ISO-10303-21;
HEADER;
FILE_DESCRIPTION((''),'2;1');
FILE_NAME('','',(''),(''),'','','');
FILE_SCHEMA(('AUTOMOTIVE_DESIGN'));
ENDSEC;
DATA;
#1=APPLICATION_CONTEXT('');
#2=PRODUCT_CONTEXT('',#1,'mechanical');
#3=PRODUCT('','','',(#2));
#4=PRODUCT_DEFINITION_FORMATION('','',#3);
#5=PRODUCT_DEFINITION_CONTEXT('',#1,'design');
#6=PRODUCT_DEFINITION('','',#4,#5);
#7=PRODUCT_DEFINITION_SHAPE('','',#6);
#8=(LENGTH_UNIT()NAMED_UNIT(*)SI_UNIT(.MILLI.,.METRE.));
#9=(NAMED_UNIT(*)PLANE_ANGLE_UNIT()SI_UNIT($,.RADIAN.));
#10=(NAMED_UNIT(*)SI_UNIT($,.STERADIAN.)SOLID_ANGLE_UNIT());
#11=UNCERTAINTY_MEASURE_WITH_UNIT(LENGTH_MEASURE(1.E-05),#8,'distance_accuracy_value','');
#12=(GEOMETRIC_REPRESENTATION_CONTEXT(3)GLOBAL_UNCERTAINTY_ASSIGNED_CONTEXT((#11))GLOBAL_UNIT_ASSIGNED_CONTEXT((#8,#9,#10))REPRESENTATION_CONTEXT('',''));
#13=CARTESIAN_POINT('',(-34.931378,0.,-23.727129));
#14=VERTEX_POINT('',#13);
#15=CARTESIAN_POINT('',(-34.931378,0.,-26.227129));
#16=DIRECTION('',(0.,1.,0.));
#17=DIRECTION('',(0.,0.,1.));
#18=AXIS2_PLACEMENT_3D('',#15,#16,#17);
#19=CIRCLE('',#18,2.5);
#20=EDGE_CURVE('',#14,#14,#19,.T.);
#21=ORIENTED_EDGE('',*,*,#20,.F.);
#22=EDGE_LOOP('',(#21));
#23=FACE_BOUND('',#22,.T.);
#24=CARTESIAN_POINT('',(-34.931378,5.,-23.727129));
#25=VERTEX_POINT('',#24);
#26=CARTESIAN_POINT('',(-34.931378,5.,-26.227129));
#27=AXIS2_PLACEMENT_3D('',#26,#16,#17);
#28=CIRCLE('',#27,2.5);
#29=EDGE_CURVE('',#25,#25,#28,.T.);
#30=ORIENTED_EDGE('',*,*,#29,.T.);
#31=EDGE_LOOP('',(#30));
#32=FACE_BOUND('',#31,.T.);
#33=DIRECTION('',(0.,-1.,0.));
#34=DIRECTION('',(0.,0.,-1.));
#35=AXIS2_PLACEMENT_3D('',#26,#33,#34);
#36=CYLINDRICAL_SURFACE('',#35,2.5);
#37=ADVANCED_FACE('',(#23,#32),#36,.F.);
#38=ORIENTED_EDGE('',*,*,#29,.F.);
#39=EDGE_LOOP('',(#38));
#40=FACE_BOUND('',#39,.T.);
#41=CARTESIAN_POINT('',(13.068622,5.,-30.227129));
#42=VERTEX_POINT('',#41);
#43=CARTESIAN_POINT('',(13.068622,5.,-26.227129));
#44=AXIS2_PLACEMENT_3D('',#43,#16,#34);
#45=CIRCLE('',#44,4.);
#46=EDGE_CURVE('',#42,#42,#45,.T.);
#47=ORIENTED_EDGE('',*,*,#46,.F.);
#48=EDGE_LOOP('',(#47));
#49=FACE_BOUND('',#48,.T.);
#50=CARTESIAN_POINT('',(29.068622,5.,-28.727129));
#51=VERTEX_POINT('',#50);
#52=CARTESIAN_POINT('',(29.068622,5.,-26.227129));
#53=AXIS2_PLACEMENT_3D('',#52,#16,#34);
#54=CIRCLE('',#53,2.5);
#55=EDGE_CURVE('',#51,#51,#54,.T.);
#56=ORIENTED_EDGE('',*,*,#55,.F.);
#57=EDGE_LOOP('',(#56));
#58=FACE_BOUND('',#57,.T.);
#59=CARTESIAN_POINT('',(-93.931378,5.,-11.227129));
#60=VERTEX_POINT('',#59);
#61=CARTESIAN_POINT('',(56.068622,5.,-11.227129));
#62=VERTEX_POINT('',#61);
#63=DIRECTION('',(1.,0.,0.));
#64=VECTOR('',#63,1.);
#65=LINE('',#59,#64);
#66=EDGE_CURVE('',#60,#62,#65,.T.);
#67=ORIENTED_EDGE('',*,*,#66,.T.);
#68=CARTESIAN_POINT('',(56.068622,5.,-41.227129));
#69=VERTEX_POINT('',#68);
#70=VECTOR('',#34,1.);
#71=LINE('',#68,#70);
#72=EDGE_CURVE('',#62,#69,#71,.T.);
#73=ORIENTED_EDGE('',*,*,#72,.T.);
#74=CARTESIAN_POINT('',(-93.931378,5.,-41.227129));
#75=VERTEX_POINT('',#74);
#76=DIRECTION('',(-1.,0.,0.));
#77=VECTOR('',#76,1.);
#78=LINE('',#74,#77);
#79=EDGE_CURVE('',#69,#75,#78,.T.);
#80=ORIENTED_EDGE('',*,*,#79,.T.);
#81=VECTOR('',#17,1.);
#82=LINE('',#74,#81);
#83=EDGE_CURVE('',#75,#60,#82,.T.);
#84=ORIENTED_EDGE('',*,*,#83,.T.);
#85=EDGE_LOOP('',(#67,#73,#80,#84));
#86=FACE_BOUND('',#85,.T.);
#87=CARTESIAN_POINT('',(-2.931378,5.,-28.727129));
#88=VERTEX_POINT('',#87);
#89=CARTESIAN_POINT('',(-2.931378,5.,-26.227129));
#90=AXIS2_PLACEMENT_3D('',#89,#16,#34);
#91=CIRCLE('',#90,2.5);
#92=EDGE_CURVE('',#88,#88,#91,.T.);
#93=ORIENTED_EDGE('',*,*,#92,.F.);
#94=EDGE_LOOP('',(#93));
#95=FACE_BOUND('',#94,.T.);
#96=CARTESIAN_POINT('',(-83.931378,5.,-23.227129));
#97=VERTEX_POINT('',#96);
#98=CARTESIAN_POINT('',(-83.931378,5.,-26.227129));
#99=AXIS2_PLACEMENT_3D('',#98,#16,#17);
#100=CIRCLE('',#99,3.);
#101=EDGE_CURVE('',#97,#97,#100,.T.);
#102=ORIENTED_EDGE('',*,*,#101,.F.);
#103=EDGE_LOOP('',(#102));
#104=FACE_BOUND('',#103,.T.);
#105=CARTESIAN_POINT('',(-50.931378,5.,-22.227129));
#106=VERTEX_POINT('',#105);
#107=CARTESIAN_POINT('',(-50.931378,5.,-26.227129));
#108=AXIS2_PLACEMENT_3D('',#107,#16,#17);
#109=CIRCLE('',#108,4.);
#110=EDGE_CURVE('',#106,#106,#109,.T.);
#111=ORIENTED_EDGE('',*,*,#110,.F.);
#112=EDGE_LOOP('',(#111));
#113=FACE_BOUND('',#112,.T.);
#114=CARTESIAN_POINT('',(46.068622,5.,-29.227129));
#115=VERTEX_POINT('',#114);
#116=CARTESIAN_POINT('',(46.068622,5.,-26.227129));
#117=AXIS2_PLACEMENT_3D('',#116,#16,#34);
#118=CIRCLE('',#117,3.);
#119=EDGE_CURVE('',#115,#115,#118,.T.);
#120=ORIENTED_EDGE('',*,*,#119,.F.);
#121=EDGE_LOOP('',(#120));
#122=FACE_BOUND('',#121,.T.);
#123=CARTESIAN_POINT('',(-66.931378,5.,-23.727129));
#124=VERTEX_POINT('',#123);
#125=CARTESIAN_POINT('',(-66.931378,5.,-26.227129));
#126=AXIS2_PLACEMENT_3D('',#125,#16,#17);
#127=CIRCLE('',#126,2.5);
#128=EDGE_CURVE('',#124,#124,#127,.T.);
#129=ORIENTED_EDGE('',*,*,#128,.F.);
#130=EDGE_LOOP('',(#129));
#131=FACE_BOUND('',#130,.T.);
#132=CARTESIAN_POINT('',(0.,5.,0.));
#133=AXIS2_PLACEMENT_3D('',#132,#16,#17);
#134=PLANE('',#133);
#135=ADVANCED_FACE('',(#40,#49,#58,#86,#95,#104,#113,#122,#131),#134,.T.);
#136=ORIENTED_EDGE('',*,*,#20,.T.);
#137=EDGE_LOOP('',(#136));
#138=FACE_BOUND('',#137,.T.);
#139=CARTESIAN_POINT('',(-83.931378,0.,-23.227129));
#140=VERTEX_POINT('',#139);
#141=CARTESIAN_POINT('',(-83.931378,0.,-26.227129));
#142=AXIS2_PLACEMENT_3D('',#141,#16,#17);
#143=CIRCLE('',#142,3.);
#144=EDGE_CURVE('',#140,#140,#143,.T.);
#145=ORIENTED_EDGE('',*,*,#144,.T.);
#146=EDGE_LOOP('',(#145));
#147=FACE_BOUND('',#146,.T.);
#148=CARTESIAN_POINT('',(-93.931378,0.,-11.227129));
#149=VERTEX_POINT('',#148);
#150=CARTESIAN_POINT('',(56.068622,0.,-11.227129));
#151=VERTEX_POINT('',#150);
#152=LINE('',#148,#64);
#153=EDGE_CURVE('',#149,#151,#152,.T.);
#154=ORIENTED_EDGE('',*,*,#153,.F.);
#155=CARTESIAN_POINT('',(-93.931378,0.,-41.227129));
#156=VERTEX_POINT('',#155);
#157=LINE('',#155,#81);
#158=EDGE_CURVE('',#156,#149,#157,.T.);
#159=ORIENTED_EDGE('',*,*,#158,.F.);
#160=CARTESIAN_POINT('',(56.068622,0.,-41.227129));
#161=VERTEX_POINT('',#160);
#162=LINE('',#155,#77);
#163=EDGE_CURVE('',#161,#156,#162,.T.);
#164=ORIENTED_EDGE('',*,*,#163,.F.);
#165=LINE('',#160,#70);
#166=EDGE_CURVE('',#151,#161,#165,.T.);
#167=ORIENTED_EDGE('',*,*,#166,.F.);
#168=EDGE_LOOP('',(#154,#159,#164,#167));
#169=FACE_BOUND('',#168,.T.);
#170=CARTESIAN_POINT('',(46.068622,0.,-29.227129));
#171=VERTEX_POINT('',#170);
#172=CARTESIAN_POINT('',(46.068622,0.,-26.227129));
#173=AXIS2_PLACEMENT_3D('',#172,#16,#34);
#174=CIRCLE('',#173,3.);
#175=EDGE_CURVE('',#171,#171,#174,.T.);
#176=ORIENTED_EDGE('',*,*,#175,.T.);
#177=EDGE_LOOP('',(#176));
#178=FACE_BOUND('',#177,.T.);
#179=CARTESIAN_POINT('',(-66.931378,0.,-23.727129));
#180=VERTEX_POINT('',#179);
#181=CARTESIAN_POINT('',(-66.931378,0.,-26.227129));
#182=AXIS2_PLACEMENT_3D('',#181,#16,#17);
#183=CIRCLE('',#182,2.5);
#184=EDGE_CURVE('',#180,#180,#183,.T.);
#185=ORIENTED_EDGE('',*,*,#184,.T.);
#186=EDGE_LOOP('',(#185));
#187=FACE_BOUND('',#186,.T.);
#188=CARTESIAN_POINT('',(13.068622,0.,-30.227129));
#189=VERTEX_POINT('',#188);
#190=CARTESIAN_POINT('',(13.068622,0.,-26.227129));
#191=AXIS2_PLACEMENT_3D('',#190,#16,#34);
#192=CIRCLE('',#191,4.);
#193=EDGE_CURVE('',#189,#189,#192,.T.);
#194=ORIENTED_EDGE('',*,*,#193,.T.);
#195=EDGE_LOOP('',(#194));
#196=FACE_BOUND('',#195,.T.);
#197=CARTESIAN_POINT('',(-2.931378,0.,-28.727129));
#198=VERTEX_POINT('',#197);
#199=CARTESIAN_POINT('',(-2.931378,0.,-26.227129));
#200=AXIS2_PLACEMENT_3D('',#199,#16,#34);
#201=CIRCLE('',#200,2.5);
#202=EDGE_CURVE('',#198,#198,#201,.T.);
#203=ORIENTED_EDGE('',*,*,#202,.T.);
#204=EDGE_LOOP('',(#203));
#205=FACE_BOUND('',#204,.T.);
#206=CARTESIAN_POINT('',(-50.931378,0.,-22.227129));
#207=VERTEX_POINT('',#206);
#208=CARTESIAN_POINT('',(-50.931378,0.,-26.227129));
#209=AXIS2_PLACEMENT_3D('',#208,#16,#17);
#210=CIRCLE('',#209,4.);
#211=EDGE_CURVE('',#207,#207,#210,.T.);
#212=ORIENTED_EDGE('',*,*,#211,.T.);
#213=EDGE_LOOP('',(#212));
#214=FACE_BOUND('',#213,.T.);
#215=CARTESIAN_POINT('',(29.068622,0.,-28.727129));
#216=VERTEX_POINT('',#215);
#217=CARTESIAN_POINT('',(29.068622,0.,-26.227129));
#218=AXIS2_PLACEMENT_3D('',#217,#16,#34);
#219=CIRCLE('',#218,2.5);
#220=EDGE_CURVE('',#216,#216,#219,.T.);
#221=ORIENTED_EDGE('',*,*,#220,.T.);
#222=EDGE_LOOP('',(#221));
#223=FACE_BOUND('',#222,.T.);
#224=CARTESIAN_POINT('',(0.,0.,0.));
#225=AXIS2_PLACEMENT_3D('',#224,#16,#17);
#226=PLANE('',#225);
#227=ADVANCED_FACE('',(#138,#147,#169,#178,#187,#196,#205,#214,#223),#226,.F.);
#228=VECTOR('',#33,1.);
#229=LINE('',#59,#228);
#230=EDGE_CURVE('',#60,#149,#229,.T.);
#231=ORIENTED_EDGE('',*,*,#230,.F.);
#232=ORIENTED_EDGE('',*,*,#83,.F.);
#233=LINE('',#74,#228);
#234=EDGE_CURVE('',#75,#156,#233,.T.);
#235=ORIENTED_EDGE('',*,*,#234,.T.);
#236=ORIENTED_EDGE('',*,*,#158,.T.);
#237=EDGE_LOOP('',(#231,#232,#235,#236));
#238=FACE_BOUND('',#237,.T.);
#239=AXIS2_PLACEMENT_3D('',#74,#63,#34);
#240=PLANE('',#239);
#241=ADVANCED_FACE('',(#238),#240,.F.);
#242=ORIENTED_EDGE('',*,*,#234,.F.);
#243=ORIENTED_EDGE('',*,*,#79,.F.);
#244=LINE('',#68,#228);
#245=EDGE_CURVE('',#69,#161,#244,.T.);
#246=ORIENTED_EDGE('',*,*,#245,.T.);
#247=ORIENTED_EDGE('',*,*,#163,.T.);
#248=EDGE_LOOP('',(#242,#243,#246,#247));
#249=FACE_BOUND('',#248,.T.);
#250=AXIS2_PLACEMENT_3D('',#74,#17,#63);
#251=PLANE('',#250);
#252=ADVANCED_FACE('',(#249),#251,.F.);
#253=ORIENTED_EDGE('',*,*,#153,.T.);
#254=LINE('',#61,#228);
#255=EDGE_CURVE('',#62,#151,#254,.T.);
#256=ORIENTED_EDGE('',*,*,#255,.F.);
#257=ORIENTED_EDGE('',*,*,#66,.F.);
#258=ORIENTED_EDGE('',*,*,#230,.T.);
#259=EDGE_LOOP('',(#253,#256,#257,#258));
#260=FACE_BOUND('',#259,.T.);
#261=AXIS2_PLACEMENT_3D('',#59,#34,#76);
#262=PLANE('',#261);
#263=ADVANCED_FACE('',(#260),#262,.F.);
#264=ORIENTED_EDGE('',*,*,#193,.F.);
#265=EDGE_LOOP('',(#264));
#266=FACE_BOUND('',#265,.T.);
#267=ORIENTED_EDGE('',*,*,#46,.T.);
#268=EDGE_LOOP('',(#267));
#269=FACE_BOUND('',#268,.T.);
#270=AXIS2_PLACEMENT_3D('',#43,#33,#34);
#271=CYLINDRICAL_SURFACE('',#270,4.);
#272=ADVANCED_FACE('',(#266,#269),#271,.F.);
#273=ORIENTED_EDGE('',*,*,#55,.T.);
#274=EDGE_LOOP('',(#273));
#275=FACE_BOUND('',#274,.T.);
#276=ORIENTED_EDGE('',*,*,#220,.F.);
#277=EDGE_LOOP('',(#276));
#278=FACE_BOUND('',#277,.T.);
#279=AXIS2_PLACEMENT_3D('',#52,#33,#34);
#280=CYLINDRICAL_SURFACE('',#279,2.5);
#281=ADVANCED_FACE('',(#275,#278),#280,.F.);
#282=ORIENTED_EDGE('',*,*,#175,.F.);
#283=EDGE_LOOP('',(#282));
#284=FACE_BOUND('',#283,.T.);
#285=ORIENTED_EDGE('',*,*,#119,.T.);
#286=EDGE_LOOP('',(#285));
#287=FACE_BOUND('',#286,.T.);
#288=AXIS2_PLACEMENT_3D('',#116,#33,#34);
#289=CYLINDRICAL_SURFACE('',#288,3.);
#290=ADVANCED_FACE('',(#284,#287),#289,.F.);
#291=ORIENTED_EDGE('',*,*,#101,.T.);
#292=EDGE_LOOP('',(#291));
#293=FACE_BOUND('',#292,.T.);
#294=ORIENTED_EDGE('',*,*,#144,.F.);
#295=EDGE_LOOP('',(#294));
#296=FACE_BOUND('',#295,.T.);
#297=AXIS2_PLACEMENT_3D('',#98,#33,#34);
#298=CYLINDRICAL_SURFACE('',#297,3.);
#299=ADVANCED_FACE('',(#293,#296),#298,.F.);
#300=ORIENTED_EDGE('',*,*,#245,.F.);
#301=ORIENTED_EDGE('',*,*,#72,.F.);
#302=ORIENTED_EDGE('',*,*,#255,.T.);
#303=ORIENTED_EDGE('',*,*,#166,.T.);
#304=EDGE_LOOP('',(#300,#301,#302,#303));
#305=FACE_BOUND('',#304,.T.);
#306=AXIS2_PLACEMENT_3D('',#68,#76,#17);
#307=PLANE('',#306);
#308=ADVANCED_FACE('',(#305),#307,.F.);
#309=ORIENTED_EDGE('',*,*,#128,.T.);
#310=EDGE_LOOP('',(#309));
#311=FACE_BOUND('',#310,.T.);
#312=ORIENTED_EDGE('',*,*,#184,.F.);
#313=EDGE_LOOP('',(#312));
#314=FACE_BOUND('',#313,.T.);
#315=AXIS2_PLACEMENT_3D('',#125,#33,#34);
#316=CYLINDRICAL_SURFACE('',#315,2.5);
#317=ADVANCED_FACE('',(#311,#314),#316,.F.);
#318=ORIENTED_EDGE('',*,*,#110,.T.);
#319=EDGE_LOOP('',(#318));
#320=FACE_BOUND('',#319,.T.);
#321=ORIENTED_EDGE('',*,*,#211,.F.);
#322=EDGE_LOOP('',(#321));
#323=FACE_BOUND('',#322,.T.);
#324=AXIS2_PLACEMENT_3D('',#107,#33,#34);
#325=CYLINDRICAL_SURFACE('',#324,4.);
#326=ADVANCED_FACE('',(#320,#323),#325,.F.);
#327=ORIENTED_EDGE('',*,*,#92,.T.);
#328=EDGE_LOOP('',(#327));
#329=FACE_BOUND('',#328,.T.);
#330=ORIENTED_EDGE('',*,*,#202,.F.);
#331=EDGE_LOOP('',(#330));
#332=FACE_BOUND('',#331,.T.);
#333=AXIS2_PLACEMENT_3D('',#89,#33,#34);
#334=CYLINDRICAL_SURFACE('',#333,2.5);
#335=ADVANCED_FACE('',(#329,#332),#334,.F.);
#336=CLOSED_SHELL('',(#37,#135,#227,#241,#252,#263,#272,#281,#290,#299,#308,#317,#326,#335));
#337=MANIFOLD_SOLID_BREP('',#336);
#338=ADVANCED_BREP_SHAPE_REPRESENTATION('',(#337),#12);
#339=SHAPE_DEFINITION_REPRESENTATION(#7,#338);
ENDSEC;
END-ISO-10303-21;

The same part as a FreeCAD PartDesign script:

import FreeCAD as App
import Part
import Sketcher
from FreeCAD import Vector


def add_polygon(sketch, points):
    """Adds a closed chain of lines whose ends are joined by coincident constraints."""
    first, n = sketch.GeometryCount, len(points)
    for a, b in zip(points, points[1:] + points[:1]):
        sketch.addGeometry(Part.LineSegment(App.Vector(*a, 0), App.Vector(*b, 0)), False)
    for i in range(n):
        sketch.addConstraint(Sketcher.Constraint("Coincident", first + i, 2, first + (i + 1) % n, 1))

doc = App.newDocument("Part")
body = doc.addObject("PartDesign::Body", "Body")

sketch1 = doc.addObject("Sketcher::SketchObject", "Sketch")
body.addObject(sketch1)
sketch1.AttachmentSupport = (doc.XZ_Plane, [""])
sketch1.MapMode = "FlatFace"
add_polygon(sketch1, [(-93.9, -41.2), (-93.9, -11.2), (56.1, -11.2), (56.1, -41.2)])
sketch1.addGeometry(Part.Circle(Vector(-83.9, -26.2, 0), Vector(0, 0, 1), 3), False)
sketch1.addGeometry(Part.Circle(Vector(-66.9, -26.2, 0), Vector(0, 0, 1), 2.5), False)
sketch1.addGeometry(Part.Circle(Vector(-50.9, -26.2, 0), Vector(0, 0, 1), 4), False)
sketch1.addGeometry(Part.Circle(Vector(-34.9, -26.2, 0), Vector(0, 0, 1), 2.5), False)
sketch1.addGeometry(Part.Circle(Vector(-2.9, -26.2, 0), Vector(0, 0, 1), 2.5), False)
sketch1.addGeometry(Part.Circle(Vector(13.1, -26.2, 0), Vector(0, 0, 1), 4), False)
sketch1.addGeometry(Part.Circle(Vector(29.1, -26.2, 0), Vector(0, 0, 1), 2.5), False)
sketch1.addGeometry(Part.Circle(Vector(46.1, -26.2, 0), Vector(0, 0, 1), 3), False)
sketch1.addConstraint(Sketcher.Constraint("Vertical", 0))
sketch1.addConstraint(Sketcher.Constraint("Horizontal", 1))
sketch1.addConstraint(Sketcher.Constraint("Vertical", 2))
sketch1.addConstraint(Sketcher.Constraint("Horizontal", 3))
sketch1.addConstraint(Sketcher.Constraint("Equal", 5, 7))
sketch1.addConstraint(Sketcher.Constraint("Equal", 7, 8))
sketch1.addConstraint(Sketcher.Constraint("Equal", 6, 9))
sketch1.addConstraint(Sketcher.Constraint("Equal", 8, 10))
sketch1.addConstraint(Sketcher.Constraint("Equal", 4, 11))
sketch1.addConstraint(Sketcher.Constraint("Horizontal", 4, 3, 5, 3))
sketch1.addConstraint(Sketcher.Constraint("Horizontal", 5, 3, 6, 3))
sketch1.addConstraint(Sketcher.Constraint("Horizontal", 6, 3, 7, 3))
sketch1.addConstraint(Sketcher.Constraint("Horizontal", 7, 3, 8, 3))
sketch1.addConstraint(Sketcher.Constraint("Horizontal", 8, 3, 9, 3))
sketch1.addConstraint(Sketcher.Constraint("Horizontal", 9, 3, 10, 3))
sketch1.addConstraint(Sketcher.Constraint("Horizontal", 10, 3, 11, 3))
sketch1.addConstraint(Sketcher.Constraint("Diameter", 4, 6.0))
sketch1.addConstraint(Sketcher.Constraint("Diameter", 5, 5.0))
sketch1.addConstraint(Sketcher.Constraint("Diameter", 6, 8.0))
sketch1.addConstraint(Sketcher.Constraint("DistanceX", 1, 1, 1, 2, 150.0))
sketch1.addConstraint(Sketcher.Constraint("DistanceY", 0, 1, 0, 2, 30.0))
sketch1.addConstraint(Sketcher.Constraint("DistanceX", 4, 3, 5, 3, 17.0))
sketch1.addConstraint(Sketcher.Constraint("DistanceX", 5, 3, 6, 3, 16.0))
sketch1.addConstraint(Sketcher.Constraint("DistanceX", 6, 3, 7, 3, 16.0))
sketch1.addConstraint(Sketcher.Constraint("DistanceX", 7, 3, 8, 3, 32.0))
sketch1.addConstraint(Sketcher.Constraint("DistanceX", 8, 3, 9, 3, 16.0))
sketch1.addConstraint(Sketcher.Constraint("DistanceX", 9, 3, 10, 3, 16.0))
sketch1.addConstraint(Sketcher.Constraint("DistanceX", 10, 3, 11, 3, 17.0))
sketch1.addConstraint(Sketcher.Constraint("DistanceX", 0, 2, 4, 3, 10.0))
sketch1.addConstraint(Sketcher.Constraint("DistanceY", 4, 3, 0, 2, 15.0))
sketch1.addConstraint(Sketcher.Constraint("DistanceY", 4, 3, -1, 1, 26.227129))
sketch1.addConstraint(Sketcher.Constraint("DistanceX", 4, 3, -1, 1, 83.931378))
pad1 = doc.addObject("PartDesign::Pad", "Pad")
body.addObject(pad1)
pad1.Profile = sketch1
pad1.Length = 5
pad1.Reversed = True

doc.recompute()
